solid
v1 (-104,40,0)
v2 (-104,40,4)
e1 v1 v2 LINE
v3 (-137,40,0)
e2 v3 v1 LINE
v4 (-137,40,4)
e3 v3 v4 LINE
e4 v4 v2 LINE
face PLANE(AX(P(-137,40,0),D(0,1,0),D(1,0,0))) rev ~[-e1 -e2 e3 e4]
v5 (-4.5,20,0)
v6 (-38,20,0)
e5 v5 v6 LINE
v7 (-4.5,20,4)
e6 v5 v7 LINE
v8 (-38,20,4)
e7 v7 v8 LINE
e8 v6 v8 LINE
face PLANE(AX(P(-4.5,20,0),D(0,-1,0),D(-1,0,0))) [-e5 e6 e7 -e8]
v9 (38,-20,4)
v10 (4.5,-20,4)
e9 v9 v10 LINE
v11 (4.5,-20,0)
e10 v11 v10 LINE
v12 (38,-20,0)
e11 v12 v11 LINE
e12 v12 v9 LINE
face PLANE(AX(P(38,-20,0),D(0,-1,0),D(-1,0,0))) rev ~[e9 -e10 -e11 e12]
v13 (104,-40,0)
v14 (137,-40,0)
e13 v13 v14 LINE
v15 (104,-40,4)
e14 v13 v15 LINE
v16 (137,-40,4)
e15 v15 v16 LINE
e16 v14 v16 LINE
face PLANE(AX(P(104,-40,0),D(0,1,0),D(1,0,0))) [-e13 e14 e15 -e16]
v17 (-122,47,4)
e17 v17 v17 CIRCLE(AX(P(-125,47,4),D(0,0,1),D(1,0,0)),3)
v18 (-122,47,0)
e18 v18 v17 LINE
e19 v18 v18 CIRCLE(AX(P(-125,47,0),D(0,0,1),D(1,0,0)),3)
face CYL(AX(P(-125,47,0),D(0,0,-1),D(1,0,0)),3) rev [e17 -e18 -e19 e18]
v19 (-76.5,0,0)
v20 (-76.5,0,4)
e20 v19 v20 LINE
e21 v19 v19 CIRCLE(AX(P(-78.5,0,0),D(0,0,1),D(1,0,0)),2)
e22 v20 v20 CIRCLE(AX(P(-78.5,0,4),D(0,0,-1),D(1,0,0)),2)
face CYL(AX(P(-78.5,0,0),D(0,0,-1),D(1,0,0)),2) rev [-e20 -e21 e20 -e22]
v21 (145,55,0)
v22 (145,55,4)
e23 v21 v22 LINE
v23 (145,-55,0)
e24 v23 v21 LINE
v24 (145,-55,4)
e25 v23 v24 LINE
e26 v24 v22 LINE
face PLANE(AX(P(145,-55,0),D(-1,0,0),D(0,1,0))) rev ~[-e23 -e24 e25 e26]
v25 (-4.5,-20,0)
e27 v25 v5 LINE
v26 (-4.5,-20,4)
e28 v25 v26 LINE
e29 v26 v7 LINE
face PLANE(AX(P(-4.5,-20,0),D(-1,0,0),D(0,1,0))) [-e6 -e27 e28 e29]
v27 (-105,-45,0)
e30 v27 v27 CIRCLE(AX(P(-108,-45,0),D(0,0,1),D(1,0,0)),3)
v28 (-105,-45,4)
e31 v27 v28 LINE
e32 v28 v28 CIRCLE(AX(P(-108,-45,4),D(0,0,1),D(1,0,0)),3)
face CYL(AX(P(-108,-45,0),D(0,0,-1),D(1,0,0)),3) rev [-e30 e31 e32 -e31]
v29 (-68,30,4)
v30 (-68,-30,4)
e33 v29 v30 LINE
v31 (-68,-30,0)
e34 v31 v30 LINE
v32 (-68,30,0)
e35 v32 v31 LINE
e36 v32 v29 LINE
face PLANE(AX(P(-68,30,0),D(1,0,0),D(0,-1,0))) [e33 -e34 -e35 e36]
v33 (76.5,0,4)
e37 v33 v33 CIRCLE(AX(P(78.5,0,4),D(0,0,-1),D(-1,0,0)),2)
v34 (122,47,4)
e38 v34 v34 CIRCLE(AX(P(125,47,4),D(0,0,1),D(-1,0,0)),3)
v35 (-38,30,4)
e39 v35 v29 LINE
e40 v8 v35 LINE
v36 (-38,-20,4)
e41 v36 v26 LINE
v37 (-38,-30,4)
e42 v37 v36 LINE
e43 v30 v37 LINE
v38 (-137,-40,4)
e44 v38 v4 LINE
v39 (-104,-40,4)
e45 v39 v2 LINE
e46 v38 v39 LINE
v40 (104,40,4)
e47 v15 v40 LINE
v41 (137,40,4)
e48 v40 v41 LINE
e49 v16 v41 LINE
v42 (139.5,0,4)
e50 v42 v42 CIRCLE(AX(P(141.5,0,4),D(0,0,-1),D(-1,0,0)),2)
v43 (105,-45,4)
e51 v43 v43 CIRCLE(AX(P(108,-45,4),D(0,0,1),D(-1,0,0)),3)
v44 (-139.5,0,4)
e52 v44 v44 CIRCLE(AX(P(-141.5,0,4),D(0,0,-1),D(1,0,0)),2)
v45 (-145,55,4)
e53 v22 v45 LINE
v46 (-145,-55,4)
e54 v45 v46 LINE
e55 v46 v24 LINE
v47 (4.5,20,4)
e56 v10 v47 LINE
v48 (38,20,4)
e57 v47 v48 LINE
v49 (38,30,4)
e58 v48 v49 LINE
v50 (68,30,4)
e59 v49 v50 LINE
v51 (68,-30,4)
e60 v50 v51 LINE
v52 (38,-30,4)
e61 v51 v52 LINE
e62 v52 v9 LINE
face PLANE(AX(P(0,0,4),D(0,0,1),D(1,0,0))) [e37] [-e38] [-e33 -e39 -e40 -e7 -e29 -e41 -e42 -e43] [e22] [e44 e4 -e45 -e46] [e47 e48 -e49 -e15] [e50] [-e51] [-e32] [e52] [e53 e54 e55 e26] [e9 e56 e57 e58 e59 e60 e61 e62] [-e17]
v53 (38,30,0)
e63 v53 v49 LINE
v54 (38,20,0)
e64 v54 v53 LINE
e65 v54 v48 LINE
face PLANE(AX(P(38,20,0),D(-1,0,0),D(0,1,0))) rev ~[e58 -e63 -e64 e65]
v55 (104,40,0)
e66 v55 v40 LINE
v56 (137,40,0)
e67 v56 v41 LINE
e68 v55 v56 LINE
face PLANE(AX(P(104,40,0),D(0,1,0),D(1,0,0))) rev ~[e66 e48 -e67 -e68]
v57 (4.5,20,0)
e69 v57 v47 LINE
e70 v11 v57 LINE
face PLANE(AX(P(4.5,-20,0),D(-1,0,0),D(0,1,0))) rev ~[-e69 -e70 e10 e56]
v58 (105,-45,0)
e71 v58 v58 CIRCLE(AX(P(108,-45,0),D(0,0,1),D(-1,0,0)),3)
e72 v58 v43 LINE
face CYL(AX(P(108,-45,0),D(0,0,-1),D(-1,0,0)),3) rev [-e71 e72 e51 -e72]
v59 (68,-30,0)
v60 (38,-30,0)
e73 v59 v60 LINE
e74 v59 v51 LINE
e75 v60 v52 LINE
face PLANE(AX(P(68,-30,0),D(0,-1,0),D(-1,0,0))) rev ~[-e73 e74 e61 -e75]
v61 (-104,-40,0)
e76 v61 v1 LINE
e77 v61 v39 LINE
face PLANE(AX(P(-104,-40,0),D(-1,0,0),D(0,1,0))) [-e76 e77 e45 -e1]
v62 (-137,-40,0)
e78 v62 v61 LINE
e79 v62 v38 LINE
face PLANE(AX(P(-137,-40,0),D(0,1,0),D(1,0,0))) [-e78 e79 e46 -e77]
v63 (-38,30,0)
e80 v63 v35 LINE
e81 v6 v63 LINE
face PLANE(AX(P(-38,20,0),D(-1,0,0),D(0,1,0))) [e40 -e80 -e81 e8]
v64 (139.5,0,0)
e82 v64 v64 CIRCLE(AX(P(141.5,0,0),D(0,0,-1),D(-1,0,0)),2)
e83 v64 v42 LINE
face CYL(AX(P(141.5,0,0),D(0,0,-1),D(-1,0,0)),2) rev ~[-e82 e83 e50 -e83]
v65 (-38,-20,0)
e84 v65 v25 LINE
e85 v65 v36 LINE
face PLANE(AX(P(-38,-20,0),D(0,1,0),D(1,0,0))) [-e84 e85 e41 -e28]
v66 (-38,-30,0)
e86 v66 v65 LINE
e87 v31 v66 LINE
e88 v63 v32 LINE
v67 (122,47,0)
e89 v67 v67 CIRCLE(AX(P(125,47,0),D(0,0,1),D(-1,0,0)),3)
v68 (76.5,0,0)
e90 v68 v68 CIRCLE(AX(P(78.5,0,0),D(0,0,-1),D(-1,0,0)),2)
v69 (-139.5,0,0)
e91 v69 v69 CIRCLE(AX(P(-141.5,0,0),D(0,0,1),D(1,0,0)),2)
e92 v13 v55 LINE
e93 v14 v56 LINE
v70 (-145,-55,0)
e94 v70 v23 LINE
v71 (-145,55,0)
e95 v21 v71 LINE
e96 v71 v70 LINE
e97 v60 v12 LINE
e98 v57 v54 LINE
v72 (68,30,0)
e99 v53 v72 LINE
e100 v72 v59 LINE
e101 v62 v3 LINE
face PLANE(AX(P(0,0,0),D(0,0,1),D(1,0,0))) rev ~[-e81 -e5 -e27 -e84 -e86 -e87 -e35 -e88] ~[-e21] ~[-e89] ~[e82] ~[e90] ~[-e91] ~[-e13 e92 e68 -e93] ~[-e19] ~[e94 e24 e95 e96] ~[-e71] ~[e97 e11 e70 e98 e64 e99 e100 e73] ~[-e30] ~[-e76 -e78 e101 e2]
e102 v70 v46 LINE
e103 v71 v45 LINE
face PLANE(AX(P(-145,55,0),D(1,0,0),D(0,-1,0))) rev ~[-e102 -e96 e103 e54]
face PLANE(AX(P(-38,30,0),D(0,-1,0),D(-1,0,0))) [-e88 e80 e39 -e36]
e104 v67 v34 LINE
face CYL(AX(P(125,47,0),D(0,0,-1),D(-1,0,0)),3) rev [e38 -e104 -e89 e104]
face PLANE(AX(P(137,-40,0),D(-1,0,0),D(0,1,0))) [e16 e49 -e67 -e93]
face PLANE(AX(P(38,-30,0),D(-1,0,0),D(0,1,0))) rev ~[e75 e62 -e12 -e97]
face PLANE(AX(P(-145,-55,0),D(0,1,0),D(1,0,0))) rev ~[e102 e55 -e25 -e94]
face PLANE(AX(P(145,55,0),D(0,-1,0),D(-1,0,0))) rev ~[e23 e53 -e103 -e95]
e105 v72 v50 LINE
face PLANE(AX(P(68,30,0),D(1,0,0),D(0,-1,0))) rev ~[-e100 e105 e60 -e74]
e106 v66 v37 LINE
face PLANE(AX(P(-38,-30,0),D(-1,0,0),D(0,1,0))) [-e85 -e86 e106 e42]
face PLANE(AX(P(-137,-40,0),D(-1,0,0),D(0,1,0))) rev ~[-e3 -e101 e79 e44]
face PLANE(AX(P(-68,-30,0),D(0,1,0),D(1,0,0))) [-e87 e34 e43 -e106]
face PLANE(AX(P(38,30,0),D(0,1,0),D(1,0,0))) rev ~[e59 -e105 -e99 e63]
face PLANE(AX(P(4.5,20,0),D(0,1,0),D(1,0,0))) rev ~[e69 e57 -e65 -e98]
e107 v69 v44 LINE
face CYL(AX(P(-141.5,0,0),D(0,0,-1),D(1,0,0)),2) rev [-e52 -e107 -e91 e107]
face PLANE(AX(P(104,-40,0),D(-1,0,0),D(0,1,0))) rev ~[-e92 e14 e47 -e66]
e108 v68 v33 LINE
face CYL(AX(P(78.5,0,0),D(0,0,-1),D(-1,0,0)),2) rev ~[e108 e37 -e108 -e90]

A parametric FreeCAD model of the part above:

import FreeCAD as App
import Part
import Sketcher
Q = App.Units.Quantity


def add_polygon(sketch, points):
    """Adds a closed chain of lines whose ends are joined by coincident constraints."""
    first, n = sketch.GeometryCount, len(points)
    for a, b in zip(points, points[1:] + points[:1]):
        sketch.addGeometry(Part.LineSegment(App.Vector(*a, 0), App.Vector(*b, 0)), False)
    for i in range(n):
        sketch.addConstraint(Sketcher.Constraint("Coincident", first + i, 2, first + (i + 1) % n, 1))

doc = App.newDocument("Part")
params = doc.addObject("Spreadsheet::Sheet", "Params")
for row, (alias, value) in enumerate([
    ("sketch1_diameter", "6 mm"),
    ("sketch1_width", "290 mm"),
    ("sketch1_width2", "33 mm"),
    ("sketch1_width3", "30 mm"),
    ("sketch1_height", "110 mm"),
    ("pad1_length", "4 mm"),
    ("sketch2_diameter", "4 mm"),
    ("pocket1_length", "10 mm"),
    ("sketch3_diameter", "4 mm"),
    ("pocket2_length", "10 mm"),
], start=1):
    params.set(f"A{row}", alias)
    params.set(f"B{row}", "=" + value)
    params.setAlias(f"B{row}", alias)

body = doc.addObject("PartDesign::Body", "Body")

sketch1 = body.newObject("Sketcher::SketchObject", "Sketch")
sketch1.AttachmentSupport = (doc.getObject("XY_Plane"), [""])
sketch1.MapMode = "FlatFace"
add_polygon(sketch1, [(-145, -55), (145, -55), (145, 55), (-145, 55)])
sketch1.addGeometry(Part.Circle(App.Vector(-108, -45, 0), App.Vector(0, 0, 1), 3), False)
add_polygon(sketch1, [(-104, -40), (-137, -40), (-137, 40), (-104, 40)])
add_polygon(sketch1, [(-38, -30), (-68, -30), (-68, 30), (-38, 30), (-38, 20), (-4.5, 20), (-4.5, -20), (-38, -20)])
sketch1.addGeometry(Part.Circle(App.Vector(108, -45, 0), App.Vector(0, 0, 1), 3), False)
add_polygon(sketch1, [(4.5, 20), (38, 20), (38, 30), (68, 30), (68, -30), (38, -30), (38, -20), (4.5, -20)])
add_polygon(sketch1, [(137, -40), (104, -40), (104, 40), (137, 40)])
sketch1.addGeometry(Part.Circle(App.Vector(-125, 47, 0), App.Vector(0, 0, 1), 3), False)
sketch1.addGeometry(Part.Circle(App.Vector(125, 47, 0), App.Vector(0, 0, 1), 3), False)
sketch1.addConstraint(Sketcher.Constraint("Horizontal", 0))
sketch1.addConstraint(Sketcher.Constraint("Vertical", 1))
sketch1.addConstraint(Sketcher.Constraint("Horizontal", 2))
sketch1.addConstraint(Sketcher.Constraint("Vertical", 3))
sketch1.addConstraint(Sketcher.Constraint("Horizontal", 5))
sketch1.addConstraint(Sketcher.Constraint("Vertical", 6))
sketch1.addConstraint(Sketcher.Constraint("Horizontal", 7))
sketch1.addConstraint(Sketcher.Constraint("Vertical", 8))
sketch1.addConstraint(Sketcher.Constraint("Horizontal", 9))
sketch1.addConstraint(Sketcher.Constraint("Vertical", 10))
sketch1.addConstraint(Sketcher.Constraint("Horizontal", 11))
sketch1.addConstraint(Sketcher.Constraint("Vertical", 12))
sketch1.addConstraint(Sketcher.Constraint("Horizontal", 13))
sketch1.addConstraint(Sketcher.Constraint("Vertical", 14))
sketch1.addConstraint(Sketcher.Constraint("Horizontal", 15))
sketch1.addConstraint(Sketcher.Constraint("Vertical", 16))
sketch1.addConstraint(Sketcher.Constraint("Horizontal", 18))
sketch1.addConstraint(Sketcher.Constraint("Vertical", 19))
sketch1.addConstraint(Sketcher.Constraint("Horizontal", 20))
sketch1.addConstraint(Sketcher.Constraint("Vertical", 21))
sketch1.addConstraint(Sketcher.Constraint("Horizontal", 22))
sketch1.addConstraint(Sketcher.Constraint("Vertical", 23))
sketch1.addConstraint(Sketcher.Constraint("Horizontal", 24))
sketch1.addConstraint(Sketcher.Constraint("Vertical", 25))
sketch1.addConstraint(Sketcher.Constraint("Horizontal", 26))
sketch1.addConstraint(Sketcher.Constraint("Vertical", 27))
sketch1.addConstraint(Sketcher.Constraint("Horizontal", 28))
sketch1.addConstraint(Sketcher.Constraint("Vertical", 29))
sketch1.addConstraint(Sketcher.Constraint("Equal", 4, 17))
sketch1.addConstraint(Sketcher.Constraint("Equal", 17, 30))
sketch1.addConstraint(Sketcher.Constraint("Equal", 30, 31))
sketch1.addConstraint(Sketcher.Constraint("Symmetric", 0, 2, 2, 2, -1, 1))
sketch1.addConstraint(Sketcher.Constraint("Symmetric", 15, 2, 18, 2, -1, 1))
sketch1.addConstraint(Sketcher.Constraint("Symmetric", 9, 2, 20, 2, -1, 1))
sketch1.addConstraint(Sketcher.Constraint("Symmetric", 11, 2, 22, 2, -1, 1))
sketch1.addConstraint(Sketcher.Constraint("Symmetric", 13, 2, 24, 2, -1, 1))
sketch1.addConstraint(Sketcher.Constraint("Symmetric", 7, 2, 26, 2, -1, 1))
sketch1.addConstraint(Sketcher.Constraint("Symmetric", 5, 2, 28, 2, -1, 1))
sketch1.addConstraint(Sketcher.Constraint("Symmetric", 4, 3, 17, 3, -2))
sketch1.addConstraint(Sketcher.Constraint("Symmetric", 30, 3, 31, 3, -2))
sketch1.addConstraint(Sketcher.Constraint("Symmetric", 12, 2, 18, 2, -2))
sketch1.addConstraint(Sketcher.Constraint("Horizontal", 11, 2, 19, 2))
sketch1.addConstraint(Sketcher.Constraint("Horizontal", 8, 2, 26, 2))
sketch1.addConstraint(Sketcher.Constraint("Diameter", 4, Q("6 mm")))
sketch1.addConstraint(Sketcher.Constraint("DistanceX", 0, 1, 0, 2, Q("290 mm")))
sketch1.addConstraint(Sketcher.Constraint("DistanceX", 5, 2, 5, 1, Q("33 mm")))
sketch1.addConstraint(Sketcher.Constraint("DistanceX", 9, 2, 9, 1, Q("30 mm")))
sketch1.addConstraint(Sketcher.Constraint("DistanceY", 1, 1, 1, 2, Q("110 mm")))
sketch1.addConstraint(Sketcher.Constraint("DistanceY", 6, 1, 6, 2, Q("80 mm")))
sketch1.addConstraint(Sketcher.Constraint("DistanceY", 10, 1, 10, 2, Q("60 mm")))
sketch1.addConstraint(Sketcher.Constraint("DistanceY", 12, 2, 12, 1, Q("10 mm")))
sketch1.addConstraint(Sketcher.Constraint("DistanceX", 13, 1, 13, 2, Q("33.5 mm")))
sketch1.addConstraint(Sketcher.Constraint("DistanceX", 4, 3, -1, 1, Q("108 mm")))
sketch1.addConstraint(Sketcher.Constraint("DistanceY", 4, 3, -1, 1, Q("45 mm")))
sketch1.addConstraint(Sketcher.Constraint("DistanceX", 30, 3, -1, 1, Q("125 mm")))
sketch1.addConstraint(Sketcher.Constraint("DistanceY", -1, 1, 30, 3, Q("47 mm")))
sketch1.addConstraint(Sketcher.Constraint("DistanceX", 5, 2, -1, 1, Q("137 mm")))
sketch1.addConstraint(Sketcher.Constraint("DistanceX", 9, 2, -1, 1, Q("68 mm")))
sketch1.setExpression("Constraints[71]", "Params.sketch1_diameter")
sketch1.setExpression("Constraints[72]", "Params.sketch1_width")
sketch1.setExpression("Constraints[73]", "Params.sketch1_width2")
sketch1.setExpression("Constraints[74]", "Params.sketch1_width3")
sketch1.setExpression("Constraints[75]", "Params.sketch1_height")
pad1 = body.newObject("PartDesign::Pad", "Pad")
pad1.Profile = sketch1
pad1.setExpression("Length", "Params.pad1_length")

sketch2 = body.newObject("Sketcher::SketchObject", "Sketch001")
sketch2.AttachmentSupport = (doc.getObject("XY_Plane"), [""])
sketch2.MapMode = "FlatFace"
sketch2.addGeometry(Part.Circle(App.Vector(141.5, 0, 0), App.Vector(0, 0, 1), 2), False)
sketch2.addConstraint(Sketcher.Constraint("PointOnObject", 0, 3, -1))
sketch2.addConstraint(Sketcher.Constraint("Diameter", 0, Q("4 mm")))
sketch2.addConstraint(Sketcher.Constraint("DistanceX", -1, 1, 0, 3, Q("141.5 mm")))
sketch2.setExpression("Constraints[1]", "Params.sketch2_diameter")
pocket1 = body.newObject("PartDesign::Pocket", "Pocket")
pocket1.Profile = sketch2
pocket1.setExpression("Length", "Params.pocket1_length")
pocket1.Reversed = True

sketch3 = body.newObject("Sketcher::SketchObject", "Sketch002")
sketch3.AttachmentSupport = (doc.getObject("XY_Plane"), [""])
sketch3.MapMode = "FlatFace"
sketch3.addGeometry(Part.Circle(App.Vector(78.5, 0, 0), App.Vector(0, 0, 1), 2), False)
sketch3.addConstraint(Sketcher.Constraint("PointOnObject", 0, 3, -1))
sketch3.addConstraint(Sketcher.Constraint("Diameter", 0, Q("4 mm")))
sketch3.addConstraint(Sketcher.Constraint("DistanceX", -1, 1, 0, 3, Q("78.5 mm")))
sketch3.setExpression("Constraints[1]", "Params.sketch3_diameter")
pocket2 = body.newObject("PartDesign::Pocket", "Pocket001")
pocket2.Profile = sketch3
pocket2.setExpression("Length", "Params.pocket2_length")
pocket2.Reversed = True
doc.recompute()

mirrored = body.newObject("PartDesign::Mirrored", "Mirrored")
mirrored.Originals = [pocket1, pocket2]
mirrored.MirrorPlane = (doc.getObject("YZ_Plane"), [""])
body.Tip = mirrored

doc.recompute()
